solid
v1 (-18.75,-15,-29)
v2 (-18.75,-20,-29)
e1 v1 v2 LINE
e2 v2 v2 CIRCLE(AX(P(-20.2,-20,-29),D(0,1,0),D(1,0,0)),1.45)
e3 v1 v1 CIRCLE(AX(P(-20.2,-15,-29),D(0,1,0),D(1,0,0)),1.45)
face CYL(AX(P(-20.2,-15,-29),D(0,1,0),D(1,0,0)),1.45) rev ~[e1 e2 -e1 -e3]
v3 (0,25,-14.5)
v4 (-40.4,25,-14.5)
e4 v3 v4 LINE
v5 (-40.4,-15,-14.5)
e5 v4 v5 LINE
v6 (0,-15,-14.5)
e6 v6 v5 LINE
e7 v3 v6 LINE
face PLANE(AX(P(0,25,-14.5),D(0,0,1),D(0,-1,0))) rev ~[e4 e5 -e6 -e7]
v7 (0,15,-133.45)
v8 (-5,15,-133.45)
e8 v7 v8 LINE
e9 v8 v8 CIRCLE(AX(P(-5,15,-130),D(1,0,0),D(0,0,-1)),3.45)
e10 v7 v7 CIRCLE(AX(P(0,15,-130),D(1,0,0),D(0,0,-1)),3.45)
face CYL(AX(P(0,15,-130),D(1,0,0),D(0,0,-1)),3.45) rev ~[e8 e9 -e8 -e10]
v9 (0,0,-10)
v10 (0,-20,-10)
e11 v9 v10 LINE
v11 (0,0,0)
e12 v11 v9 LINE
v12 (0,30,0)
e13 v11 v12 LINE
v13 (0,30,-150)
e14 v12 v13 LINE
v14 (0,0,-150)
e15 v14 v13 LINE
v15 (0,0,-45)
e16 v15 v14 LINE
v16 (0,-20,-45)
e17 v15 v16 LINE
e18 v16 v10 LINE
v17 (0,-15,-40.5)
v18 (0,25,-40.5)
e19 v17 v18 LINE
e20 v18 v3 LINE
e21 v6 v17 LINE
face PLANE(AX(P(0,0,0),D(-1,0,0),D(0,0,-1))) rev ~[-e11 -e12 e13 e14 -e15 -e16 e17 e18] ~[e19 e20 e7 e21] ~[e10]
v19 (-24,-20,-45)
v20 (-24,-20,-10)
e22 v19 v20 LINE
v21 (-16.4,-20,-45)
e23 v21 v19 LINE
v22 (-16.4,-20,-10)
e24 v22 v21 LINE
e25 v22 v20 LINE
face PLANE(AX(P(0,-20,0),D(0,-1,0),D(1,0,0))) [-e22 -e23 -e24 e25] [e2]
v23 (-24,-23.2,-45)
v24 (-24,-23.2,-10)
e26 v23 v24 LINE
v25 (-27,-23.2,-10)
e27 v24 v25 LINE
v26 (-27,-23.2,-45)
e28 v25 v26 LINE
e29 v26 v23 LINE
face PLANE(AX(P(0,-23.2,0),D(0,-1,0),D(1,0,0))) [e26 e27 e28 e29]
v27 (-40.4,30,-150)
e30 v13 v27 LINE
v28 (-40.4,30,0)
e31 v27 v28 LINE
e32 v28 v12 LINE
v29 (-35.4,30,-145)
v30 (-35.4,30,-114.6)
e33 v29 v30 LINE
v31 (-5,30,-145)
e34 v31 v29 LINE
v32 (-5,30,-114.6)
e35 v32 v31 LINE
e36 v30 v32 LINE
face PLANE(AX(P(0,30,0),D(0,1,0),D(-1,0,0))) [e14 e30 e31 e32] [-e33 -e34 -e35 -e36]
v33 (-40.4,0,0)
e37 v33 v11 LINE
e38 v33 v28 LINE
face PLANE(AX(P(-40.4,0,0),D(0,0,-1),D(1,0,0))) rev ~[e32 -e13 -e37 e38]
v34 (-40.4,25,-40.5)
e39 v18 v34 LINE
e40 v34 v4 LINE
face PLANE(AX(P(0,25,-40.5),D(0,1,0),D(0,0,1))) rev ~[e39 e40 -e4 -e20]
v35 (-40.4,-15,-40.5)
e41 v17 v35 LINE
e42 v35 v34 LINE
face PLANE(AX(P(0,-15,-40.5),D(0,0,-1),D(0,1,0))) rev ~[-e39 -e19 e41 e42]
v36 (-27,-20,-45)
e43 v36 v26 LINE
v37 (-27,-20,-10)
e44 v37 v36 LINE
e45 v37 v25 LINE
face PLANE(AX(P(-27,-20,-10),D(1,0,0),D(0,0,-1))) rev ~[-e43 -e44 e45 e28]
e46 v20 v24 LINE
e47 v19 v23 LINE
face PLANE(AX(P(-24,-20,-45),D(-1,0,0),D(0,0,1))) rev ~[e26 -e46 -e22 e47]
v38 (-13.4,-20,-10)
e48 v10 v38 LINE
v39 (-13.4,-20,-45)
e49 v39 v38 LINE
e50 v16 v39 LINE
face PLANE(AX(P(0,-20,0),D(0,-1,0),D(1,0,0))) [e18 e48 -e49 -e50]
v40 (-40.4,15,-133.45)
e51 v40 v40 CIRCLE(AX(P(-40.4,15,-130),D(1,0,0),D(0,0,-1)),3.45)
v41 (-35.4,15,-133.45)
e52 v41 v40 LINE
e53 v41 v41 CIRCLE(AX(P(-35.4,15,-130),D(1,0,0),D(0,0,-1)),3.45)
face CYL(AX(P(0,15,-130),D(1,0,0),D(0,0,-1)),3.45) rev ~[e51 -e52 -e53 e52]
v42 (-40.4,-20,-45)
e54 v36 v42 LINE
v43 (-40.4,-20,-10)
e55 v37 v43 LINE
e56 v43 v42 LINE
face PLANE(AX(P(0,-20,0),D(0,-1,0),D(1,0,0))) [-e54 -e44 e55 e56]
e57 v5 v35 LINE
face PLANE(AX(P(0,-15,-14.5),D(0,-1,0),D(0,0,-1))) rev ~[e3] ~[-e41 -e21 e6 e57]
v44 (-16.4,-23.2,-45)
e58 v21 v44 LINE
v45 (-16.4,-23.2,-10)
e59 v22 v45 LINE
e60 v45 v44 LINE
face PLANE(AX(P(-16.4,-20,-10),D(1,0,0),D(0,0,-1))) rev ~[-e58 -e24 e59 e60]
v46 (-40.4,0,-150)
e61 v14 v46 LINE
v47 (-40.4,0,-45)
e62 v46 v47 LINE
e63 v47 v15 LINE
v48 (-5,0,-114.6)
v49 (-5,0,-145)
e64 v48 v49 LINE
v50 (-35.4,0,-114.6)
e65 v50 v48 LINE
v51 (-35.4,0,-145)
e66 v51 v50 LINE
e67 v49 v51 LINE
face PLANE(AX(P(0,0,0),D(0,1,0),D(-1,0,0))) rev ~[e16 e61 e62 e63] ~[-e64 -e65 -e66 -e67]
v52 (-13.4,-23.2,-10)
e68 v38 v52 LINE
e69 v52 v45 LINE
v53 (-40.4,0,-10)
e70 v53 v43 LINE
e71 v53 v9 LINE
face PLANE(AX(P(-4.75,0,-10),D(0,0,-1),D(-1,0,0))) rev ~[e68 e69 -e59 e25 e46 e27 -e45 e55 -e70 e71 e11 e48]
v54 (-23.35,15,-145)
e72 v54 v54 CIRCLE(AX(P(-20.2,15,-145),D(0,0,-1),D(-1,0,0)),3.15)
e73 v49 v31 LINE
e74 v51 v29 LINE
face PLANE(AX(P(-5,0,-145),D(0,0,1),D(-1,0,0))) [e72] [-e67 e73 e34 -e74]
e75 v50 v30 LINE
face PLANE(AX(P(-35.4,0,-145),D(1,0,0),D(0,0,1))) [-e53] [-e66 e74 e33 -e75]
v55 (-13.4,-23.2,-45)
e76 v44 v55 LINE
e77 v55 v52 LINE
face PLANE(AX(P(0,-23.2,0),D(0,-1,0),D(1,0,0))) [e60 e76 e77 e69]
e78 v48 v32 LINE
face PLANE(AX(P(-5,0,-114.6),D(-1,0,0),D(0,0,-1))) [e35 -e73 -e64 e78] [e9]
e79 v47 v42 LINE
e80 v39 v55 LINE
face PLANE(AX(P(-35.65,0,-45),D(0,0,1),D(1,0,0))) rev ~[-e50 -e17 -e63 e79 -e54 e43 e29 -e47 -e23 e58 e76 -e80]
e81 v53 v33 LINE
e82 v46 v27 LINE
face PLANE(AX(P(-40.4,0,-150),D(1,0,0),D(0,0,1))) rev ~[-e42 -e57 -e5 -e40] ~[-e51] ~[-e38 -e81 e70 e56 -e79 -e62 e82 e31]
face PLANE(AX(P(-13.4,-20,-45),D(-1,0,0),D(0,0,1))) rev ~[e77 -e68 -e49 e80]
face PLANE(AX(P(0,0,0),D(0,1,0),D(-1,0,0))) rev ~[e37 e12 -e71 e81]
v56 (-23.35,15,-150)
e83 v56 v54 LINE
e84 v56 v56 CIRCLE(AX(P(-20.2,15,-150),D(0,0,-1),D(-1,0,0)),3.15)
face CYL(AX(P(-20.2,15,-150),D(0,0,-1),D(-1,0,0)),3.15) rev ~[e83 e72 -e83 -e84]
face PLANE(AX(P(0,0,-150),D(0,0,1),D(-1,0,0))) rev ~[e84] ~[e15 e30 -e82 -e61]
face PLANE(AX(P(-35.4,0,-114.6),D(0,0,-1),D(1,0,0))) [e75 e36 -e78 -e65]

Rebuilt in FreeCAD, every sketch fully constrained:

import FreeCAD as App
import Part
import Sketcher
from FreeCAD import Vector
Q = App.Units.Quantity

doc = App.newDocument("Part")
body = doc.addObject("PartDesign::Body", "Body")

# Sketch on XZ plane
sketch1 = body.newObject("Sketcher::SketchObject", "Sketch")
sketch1.AttachmentSupport = (doc.getObject("XZ_Plane"), [""])
sketch1.MapMode = "FlatFace"
sketch1.addGeometry([
    Part.LineSegment(Vector(-40.4, -150, 0), Vector(-40.4, 0, 0)),  # 0
    Part.LineSegment(Vector(-40.4, 0, 0), Vector(0, 0, 0)),  # 1
    Part.LineSegment(Vector(0, 0, 0), Vector(0, -150, 0)),  # 2
    Part.LineSegment(Vector(0, -150, 0), Vector(-40.4, -150, 0)),  # 3
    Part.LineSegment(Vector(-5, -114.6, 0), Vector(-35.4, -114.6, 0)),  # 4
    Part.LineSegment(Vector(-35.4, -114.6, 0), Vector(-35.4, -145, 0)),  # 5
    Part.LineSegment(Vector(-35.4, -145, 0), Vector(-5, -145, 0)),  # 6
    Part.LineSegment(Vector(-5, -145, 0), Vector(-5, -114.6, 0)),  # 7
    Part.LineSegment(Vector(-4.75, -10, 0), Vector(-35.65, -10, 0)),  # 8
    Part.LineSegment(Vector(-35.65, -10, 0), Vector(-35.65, -80, 0)),  # 9
    Part.LineSegment(Vector(-35.65, -80, 0), Vector(-4.75, -80, 0)),  # 10
    Part.LineSegment(Vector(-4.75, -80, 0), Vector(-4.75, -10, 0)),  # 11
], False)
sketch1.addConstraint([
    Sketcher.Constraint("Coincident", 0, 2, 1, 1),
    Sketcher.Constraint("Coincident", 1, 2, 2, 1),
    Sketcher.Constraint("Coincident", 2, 2, 3, 1),
    Sketcher.Constraint("Coincident", 3, 2, 0, 1),
    Sketcher.Constraint("Coincident", 4, 2, 5, 1),
    Sketcher.Constraint("Coincident", 5, 2, 6, 1),
    Sketcher.Constraint("Coincident", 6, 2, 7, 1),
    Sketcher.Constraint("Coincident", 7, 2, 4, 1),
    Sketcher.Constraint("Coincident", 8, 2, 9, 1),
    Sketcher.Constraint("Coincident", 9, 2, 10, 1),
    Sketcher.Constraint("Coincident", 10, 2, 11, 1),
    Sketcher.Constraint("Coincident", 11, 2, 8, 1),
    Sketcher.Constraint("Vertical", 0),
    Sketcher.Constraint("Horizontal", 1),
    Sketcher.Constraint("Vertical", 2),
    Sketcher.Constraint("Horizontal", 3),
    Sketcher.Constraint("Horizontal", 4),
    Sketcher.Constraint("Vertical", 5),
    Sketcher.Constraint("Horizontal", 6),
    Sketcher.Constraint("Vertical", 7),
    Sketcher.Constraint("Horizontal", 8),
    Sketcher.Constraint("Vertical", 9),
    Sketcher.Constraint("Horizontal", 10),
    Sketcher.Constraint("Vertical", 11),
    Sketcher.Constraint("Coincident", 1, 2, -1, 1),
    Sketcher.Constraint("Equal", 6, 5),
    Sketcher.Constraint("DistanceY", 0, 1, 0, 2, Q("150 mm")),
    Sketcher.Constraint("DistanceY", 9, 2, 9, 1, Q("70 mm")),
    Sketcher.Constraint("DistanceX", 4, 2, 4, 1, Q("30.4 mm")),
    Sketcher.Constraint("DistanceX", 6, 2, -1, 1, Q("5 mm")),
    Sketcher.Constraint("DistanceY", 8, 2, -1, 1, Q("10 mm")),
    Sketcher.Constraint("DistanceX", 3, 2, 4, 2, Q("5 mm")),
    Sketcher.Constraint("DistanceY", 3, 2, 5, 2, Q("5 mm")),
    Sketcher.Constraint("DistanceX", 10, 2, -1, 1, Q("4.75 mm")),
    Sketcher.Constraint("DistanceX", 0, 2, 8, 2, Q("4.75 mm")),
])
pad1 = body.newObject("PartDesign::Pad", "Pad")
pad1.Profile = sketch1
pad1.Length = 30
pad1.Reversed = True

# Sketch on YZ plane
sketch2 = body.newObject("Sketcher::SketchObject", "Sketch001")
sketch2.AttachmentSupport = (doc.getObject("YZ_Plane"), [""])
sketch2.MapMode = "FlatFace"
sketch2.addGeometry(Part.Circle(Vector(15, -130, 0), Vector(0, 0, 1), 3.45), False)
sketch2.addConstraint([
    Sketcher.Constraint("Diameter", 0, Q("6.9 mm")),
    Sketcher.Constraint("DistanceX", -1, 1, 0, 3, Q("15 mm")),
    Sketcher.Constraint("DistanceY", 0, 3, -1, 1, Q("130 mm")),
])
pocket1 = body.newObject("PartDesign::Pocket", "Pocket")
pocket1.Profile = sketch2
pocket1.Length = 50

# Sketch on XY plane
sketch3 = body.newObject("Sketcher::SketchObject", "Sketch002")
sketch3.AttachmentSupport = (doc.getObject("XY_Plane"), [""])
sketch3.MapMode = "FlatFace"
sketch3.AttachmentOffset = App.Placement(Vector(0, 0, -150), App.Rotation())
sketch3.addGeometry(Part.Circle(Vector(-20.2, 15, 0), Vector(0, 0, 1), 3.15), False)
sketch3.addConstraint([
    Sketcher.Constraint("Diameter", 0, Q("6.3 mm")),
    Sketcher.Constraint("DistanceY", -1, 1, 0, 3, Q("15 mm")),
    Sketcher.Constraint("DistanceX", 0, 3, -1, 1, Q("20.2 mm")),
])
pocket2 = body.newObject("PartDesign::Pocket", "Pocket001")
pocket2.Profile = sketch3
pocket2.Length = 10
pocket2.Reversed = True

# Sketch on XZ plane
sketch4 = body.newObject("Sketcher::SketchObject", "Sketch003")
sketch4.AttachmentSupport = (doc.getObject("XZ_Plane"), [""])
sketch4.MapMode = "FlatFace"
sketch4.addGeometry([
    Part.LineSegment(Vector(-35.65, -80, 0), Vector(-35.65, -10, 0)),
    Part.LineSegment(Vector(-35.65, -10, 0), Vector(-4.75, -10, 0)),
    Part.LineSegment(Vector(-4.75, -10, 0), Vector(-4.75, -80, 0)),
    Part.LineSegment(Vector(-4.75, -80, 0), Vector(-35.65, -80, 0)),
], False)
sketch4.addConstraint([
    Sketcher.Constraint("Coincident", 0, 2, 1, 1),
    Sketcher.Constraint("Coincident", 1, 2, 2, 1),
    Sketcher.Constraint("Coincident", 2, 2, 3, 1),
    Sketcher.Constraint("Coincident", 3, 2, 0, 1),
    Sketcher.Constraint("Vertical", 0),
    Sketcher.Constraint("Horizontal", 1),
    Sketcher.Constraint("Vertical", 2),
    Sketcher.Constraint("Horizontal", 3),
    Sketcher.Constraint("DistanceY", 0, 1, 0, 2, Q("70 mm")),
    Sketcher.Constraint("DistanceY", 0, 2, -1, 1, Q("10 mm")),
    Sketcher.Constraint("DistanceX", 1, 2, -1, 1, Q("4.75 mm")),
    Sketcher.Constraint("DistanceX", 1, 1, 1, 2, Q("30.9 mm")),
])
pad2 = body.newObject("PartDesign::Pad", "Pad001")
pad2.Profile = sketch4
pad2.Length = 30
pad2.Reversed = True

# Sketch on XZ plane
sketch5 = body.newObject("Sketcher::SketchObject", "Sketch004")
sketch5.AttachmentSupport = (doc.getObject("XZ_Plane"), [""])
sketch5.MapMode = "FlatFace"
sketch5.addGeometry([
    Part.LineSegment(Vector(0, -45, 0), Vector(0, -10, 0)),
    Part.LineSegment(Vector(0, -10, 0), Vector(-40.4, -10, 0)),
    Part.LineSegment(Vector(-40.4, -10, 0), Vector(-40.4, -45, 0)),
    Part.LineSegment(Vector(-40.4, -45, 0), Vector(0, -45, 0)),
], False)
sketch5.addConstraint([
    Sketcher.Constraint("Coincident", 0, 2, 1, 1),
    Sketcher.Constraint("Coincident", 1, 2, 2, 1),
    Sketcher.Constraint("Coincident", 2, 2, 3, 1),
    Sketcher.Constraint("Coincident", 3, 2, 0, 1),
    Sketcher.Constraint("Vertical", 0),
    Sketcher.Constraint("Horizontal", 1),
    Sketcher.Constraint("Vertical", 2),
    Sketcher.Constraint("Horizontal", 3),
    Sketcher.Constraint("PointOnObject", 0, 2, -2),
    Sketcher.Constraint("DistanceY", 0, 1, 0, 2, Q("35 mm")),
    Sketcher.Constraint("DistanceX", 1, 2, 1, 1, Q("40.4 mm")),
    Sketcher.Constraint("DistanceY", 0, 2, -1, 1, Q("10 mm")),
])
pad3 = body.newObject("PartDesign::Pad", "Pad002")
pad3.Profile = sketch5
pad3.Length = 20

# Sketch on YZ plane
sketch6 = body.newObject("Sketcher::SketchObject", "Sketch005")
sketch6.AttachmentSupport = (doc.getObject("YZ_Plane"), [""])
sketch6.MapMode = "FlatFace"
sketch6.addGeometry([
    Part.LineSegment(Vector(25, -14.5, 0), Vector(-15, -14.5, 0)),
    Part.LineSegment(Vector(-15, -14.5, 0), Vector(-15, -40.5, 0)),
    Part.LineSegment(Vector(-15, -40.5, 0), Vector(25, -40.5, 0)),
    Part.LineSegment(Vector(25, -40.5, 0), Vector(25, -14.5, 0)),
], False)
sketch6.addConstraint([
    Sketcher.Constraint("Coincident", 0, 2, 1, 1),
    Sketcher.Constraint("Coincident", 1, 2, 2, 1),
    Sketcher.Constraint("Coincident", 2, 2, 3, 1),
    Sketcher.Constraint("Coincident", 3, 2, 0, 1),
    Sketcher.Constraint("Horizontal", 0),
    Sketcher.Constraint("Vertical", 1),
    Sketcher.Constraint("Horizontal", 2),
    Sketcher.Constraint("Vertical", 3),
    Sketcher.Constraint("DistanceY", 1, 2, 1, 1, Q("26 mm")),
    Sketcher.Constraint("DistanceX", 0, 2, 0, 1, Q("40 mm")),
    Sketcher.Constraint("DistanceX", 0, 2, -1, 1, Q("15 mm")),
    Sketcher.Constraint("DistanceY", 0, 2, -1, 1, Q("14.5 mm")),
])
pocket3 = body.newObject("PartDesign::Pocket", "Pocket002")
pocket3.Profile = sketch6
pocket3.Length = 40.4

# Sketch on XZ plane
sketch7 = body.newObject("Sketcher::SketchObject", "Sketch006")
sketch7.AttachmentSupport = (doc.getObject("XZ_Plane"), [""])
sketch7.MapMode = "FlatFace"
sketch7.AttachmentOffset = App.Placement(Vector(0, 0, 15), App.Rotation())
sketch7.addGeometry(Part.Circle(Vector(-20.2, -29, 0), Vector(0, 0, 1), 1.45), False)
sketch7.addConstraint([
    Sketcher.Constraint("Diameter", 0, Q("2.9 mm")),
    Sketcher.Constraint("DistanceY", 0, 3, -1, 1, Q("29 mm")),
    Sketcher.Constraint("DistanceX", 0, 3, -1, 1, Q("20.2 mm")),
])
pocket4 = body.newObject("PartDesign::Pocket", "Pocket003")
pocket4.Profile = sketch7
pocket4.Length = 10
pocket4.Reversed = True

# Sketch on XZ plane
sketch8 = body.newObject("Sketcher::SketchObject", "Sketch007")
sketch8.AttachmentSupport = (doc.getObject("XZ_Plane"), [""])
sketch8.MapMode = "FlatFace"
sketch8.AttachmentOffset = App.Placement(Vector(0, 0, 20), App.Rotation())
sketch8.addGeometry([
    Part.LineSegment(Vector(-13.4, -45, 0), Vector(-13.4, -10, 0)),  # 0
    Part.LineSegment(Vector(-13.4, -10, 0), Vector(-16.4, -10, 0)),  # 1
    Part.LineSegment(Vector(-16.4, -10, 0), Vector(-16.4, -45, 0)),  # 2
    Part.LineSegment(Vector(-16.4, -45, 0), Vector(-13.4, -45, 0)),  # 3
    Part.LineSegment(Vector(-24, -45, 0), Vector(-24, -10, 0)),  # 4
    Part.LineSegment(Vector(-24, -10, 0), Vector(-27, -10, 0)),  # 5
    Part.LineSegment(Vector(-27, -10, 0), Vector(-27, -45, 0)),  # 6
    Part.LineSegment(Vector(-27, -45, 0), Vector(-24, -45, 0)),  # 7
], False)
sketch8.addConstraint([
    Sketcher.Constraint("Coincident", 0, 2, 1, 1),
    Sketcher.Constraint("Coincident", 1, 2, 2, 1),
    Sketcher.Constraint("Coincident", 2, 2, 3, 1),
    Sketcher.Constraint("Coincident", 3, 2, 0, 1),
    Sketcher.Constraint("Coincident", 4, 2, 5, 1),
    Sketcher.Constraint("Coincident", 5, 2, 6, 1),
    Sketcher.Constraint("Coincident", 6, 2, 7, 1),
    Sketcher.Constraint("Coincident", 7, 2, 4, 1),
    Sketcher.Constraint("Vertical", 0),
    Sketcher.Constraint("Horizontal", 1),
    Sketcher.Constraint("Vertical", 2),
    Sketcher.Constraint("Horizontal", 3),
    Sketcher.Constraint("Vertical", 4),
    Sketcher.Constraint("Horizontal", 5),
    Sketcher.Constraint("Vertical", 6),
    Sketcher.Constraint("Horizontal", 7),
    Sketcher.Constraint("Horizontal", 1, 2, 4, 2),
    Sketcher.Constraint("Horizontal", 3, 2, 6, 2),
    Sketcher.Constraint("Equal", 3, 5),
    Sketcher.Constraint("DistanceX", 1, 2, 1, 1, Q("3 mm")),
    Sketcher.Constraint("DistanceX", 4, 2, 1, 2, Q("7.6 mm")),
    Sketcher.Constraint("DistanceY", 0, 1, 0, 2, Q("35 mm")),
    Sketcher.Constraint("DistanceY", 0, 2, -1, 1, Q("10 mm")),
    Sketcher.Constraint("DistanceX", 4, 2, -1, 1, Q("24 mm")),
])
pad4 = body.newObject("PartDesign::Pad", "Pad003")
pad4.Profile = sketch8
pad4.Length = 3.2

doc.recompute()
